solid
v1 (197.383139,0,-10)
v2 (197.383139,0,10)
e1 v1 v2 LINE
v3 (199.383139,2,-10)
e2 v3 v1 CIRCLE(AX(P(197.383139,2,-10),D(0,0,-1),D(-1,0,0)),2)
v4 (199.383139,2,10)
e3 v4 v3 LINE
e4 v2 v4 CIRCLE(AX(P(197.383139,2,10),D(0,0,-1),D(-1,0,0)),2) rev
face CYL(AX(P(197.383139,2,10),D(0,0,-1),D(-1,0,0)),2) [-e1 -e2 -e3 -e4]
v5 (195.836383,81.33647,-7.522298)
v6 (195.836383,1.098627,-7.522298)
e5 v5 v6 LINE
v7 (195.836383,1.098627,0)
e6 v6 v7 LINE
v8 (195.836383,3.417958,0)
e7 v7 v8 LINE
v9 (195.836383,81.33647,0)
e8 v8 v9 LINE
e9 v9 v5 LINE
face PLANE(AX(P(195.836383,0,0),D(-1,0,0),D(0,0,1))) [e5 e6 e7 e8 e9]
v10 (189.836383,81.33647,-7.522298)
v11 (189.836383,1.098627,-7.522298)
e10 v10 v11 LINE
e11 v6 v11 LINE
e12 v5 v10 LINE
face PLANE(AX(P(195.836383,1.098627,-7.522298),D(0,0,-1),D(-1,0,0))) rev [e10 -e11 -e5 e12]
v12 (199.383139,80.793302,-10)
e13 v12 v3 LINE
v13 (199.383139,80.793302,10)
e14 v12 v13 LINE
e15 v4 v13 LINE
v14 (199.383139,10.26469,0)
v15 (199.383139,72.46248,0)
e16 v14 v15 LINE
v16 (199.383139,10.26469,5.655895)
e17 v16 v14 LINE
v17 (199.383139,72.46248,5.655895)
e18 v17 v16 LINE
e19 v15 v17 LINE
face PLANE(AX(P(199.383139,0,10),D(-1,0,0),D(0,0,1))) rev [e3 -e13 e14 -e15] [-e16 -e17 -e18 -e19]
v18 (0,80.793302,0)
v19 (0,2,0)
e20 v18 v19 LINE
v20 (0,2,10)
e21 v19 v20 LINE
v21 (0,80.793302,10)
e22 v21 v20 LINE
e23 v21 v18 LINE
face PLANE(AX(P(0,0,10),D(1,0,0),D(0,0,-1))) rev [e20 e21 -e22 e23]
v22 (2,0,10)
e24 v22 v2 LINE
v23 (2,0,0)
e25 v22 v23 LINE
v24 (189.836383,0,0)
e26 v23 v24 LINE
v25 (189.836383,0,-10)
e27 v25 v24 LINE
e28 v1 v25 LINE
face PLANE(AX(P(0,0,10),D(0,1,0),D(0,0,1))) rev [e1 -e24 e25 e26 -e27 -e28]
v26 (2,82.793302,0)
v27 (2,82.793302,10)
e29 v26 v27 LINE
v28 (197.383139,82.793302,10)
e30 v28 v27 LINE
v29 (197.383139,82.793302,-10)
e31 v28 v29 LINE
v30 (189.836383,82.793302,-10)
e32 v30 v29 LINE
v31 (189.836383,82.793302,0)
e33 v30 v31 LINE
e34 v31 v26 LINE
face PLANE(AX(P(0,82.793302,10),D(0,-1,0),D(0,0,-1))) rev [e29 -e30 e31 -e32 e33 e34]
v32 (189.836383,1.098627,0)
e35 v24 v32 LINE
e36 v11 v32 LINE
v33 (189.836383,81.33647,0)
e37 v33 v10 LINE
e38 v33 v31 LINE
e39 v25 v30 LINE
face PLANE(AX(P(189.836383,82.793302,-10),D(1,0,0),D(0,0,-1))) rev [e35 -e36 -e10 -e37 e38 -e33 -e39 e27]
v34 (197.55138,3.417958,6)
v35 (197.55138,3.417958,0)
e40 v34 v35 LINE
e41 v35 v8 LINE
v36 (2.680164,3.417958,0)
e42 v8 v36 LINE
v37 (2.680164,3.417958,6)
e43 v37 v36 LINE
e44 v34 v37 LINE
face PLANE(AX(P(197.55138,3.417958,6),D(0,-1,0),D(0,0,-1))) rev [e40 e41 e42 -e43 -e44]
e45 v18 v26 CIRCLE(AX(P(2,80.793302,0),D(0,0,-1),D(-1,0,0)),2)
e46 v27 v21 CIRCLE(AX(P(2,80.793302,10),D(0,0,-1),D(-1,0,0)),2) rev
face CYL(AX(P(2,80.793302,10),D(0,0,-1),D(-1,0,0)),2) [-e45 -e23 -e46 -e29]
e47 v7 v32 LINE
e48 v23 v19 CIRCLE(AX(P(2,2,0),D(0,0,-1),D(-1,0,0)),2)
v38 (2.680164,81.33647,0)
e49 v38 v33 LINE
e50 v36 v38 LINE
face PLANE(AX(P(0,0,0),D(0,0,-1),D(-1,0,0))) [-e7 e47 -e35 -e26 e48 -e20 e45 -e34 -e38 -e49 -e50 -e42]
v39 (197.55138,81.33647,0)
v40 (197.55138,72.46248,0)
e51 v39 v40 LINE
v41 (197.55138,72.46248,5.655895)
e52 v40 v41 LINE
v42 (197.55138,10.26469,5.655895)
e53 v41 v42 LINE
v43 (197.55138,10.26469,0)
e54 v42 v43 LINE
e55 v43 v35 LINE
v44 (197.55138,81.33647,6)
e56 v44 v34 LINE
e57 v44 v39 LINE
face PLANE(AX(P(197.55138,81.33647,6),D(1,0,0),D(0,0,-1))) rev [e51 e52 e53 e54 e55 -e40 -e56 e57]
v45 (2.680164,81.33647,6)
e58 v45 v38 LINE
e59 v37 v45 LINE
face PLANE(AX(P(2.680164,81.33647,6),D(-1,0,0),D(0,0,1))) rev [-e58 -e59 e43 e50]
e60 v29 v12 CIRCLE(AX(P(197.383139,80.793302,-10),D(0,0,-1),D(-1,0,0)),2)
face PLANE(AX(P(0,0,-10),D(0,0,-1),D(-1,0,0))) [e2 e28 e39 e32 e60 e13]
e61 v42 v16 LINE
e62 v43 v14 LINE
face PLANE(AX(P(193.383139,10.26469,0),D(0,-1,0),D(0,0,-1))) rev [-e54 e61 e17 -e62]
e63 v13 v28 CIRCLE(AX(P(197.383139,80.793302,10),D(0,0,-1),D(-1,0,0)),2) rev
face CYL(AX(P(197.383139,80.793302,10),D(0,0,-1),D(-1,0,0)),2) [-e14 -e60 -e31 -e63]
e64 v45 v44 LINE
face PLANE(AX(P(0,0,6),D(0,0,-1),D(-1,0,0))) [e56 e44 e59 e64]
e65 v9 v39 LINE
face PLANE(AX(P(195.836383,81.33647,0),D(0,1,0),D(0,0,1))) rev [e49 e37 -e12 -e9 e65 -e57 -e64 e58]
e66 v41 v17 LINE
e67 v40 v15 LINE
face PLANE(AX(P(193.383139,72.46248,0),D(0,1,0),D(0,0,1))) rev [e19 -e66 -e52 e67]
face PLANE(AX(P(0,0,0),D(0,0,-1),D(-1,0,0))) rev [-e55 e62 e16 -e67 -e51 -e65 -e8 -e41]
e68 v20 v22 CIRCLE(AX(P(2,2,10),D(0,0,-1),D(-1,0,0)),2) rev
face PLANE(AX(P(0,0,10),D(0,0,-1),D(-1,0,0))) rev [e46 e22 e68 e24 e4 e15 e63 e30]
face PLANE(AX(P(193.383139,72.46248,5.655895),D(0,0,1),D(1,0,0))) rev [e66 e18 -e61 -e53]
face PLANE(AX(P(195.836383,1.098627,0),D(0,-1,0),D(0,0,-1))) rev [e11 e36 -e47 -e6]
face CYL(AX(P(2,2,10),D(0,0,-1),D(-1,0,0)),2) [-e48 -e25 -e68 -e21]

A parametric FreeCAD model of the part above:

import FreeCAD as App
import Part
import Sketcher
from FreeCAD import Vector
Q = App.Units.Quantity


def edges_at(feature, points):
    """Names of the edges that pass closest to the given points."""
    edges = feature.Shape.Edges
    near = lambda p: min(range(len(edges)), key=lambda i: edges[i].distToShape(Part.Vertex(*p))[0])
    return sorted({f"Edge{near(p) + 1}" for p in points})

doc = App.newDocument("Part")
body = doc.addObject("PartDesign::Body", "Body")

sketch1 = doc.addObject("Sketcher::SketchObject", "Sketch")
body.addObject(sketch1)
sketch1.AttachmentSupport = (doc.XY_Plane, [""])
sketch1.MapMode = "FlatFace"
sketch1.addGeometry([
    Part.LineSegment(Vector(0, 82.793302, 0), Vector(0, 0, 0)),
    Part.LineSegment(Vector(0, 0, 0), Vector(199.383139, 0, 0)),
    Part.LineSegment(Vector(199.383139, 0, 0), Vector(199.383139, 82.793302, 0)),
    Part.LineSegment(Vector(199.383139, 82.793302, 0), Vector(0, 82.793302, 0)),
], False)
sketch1.addConstraint([
    Sketcher.Constraint("Coincident", 0, 2, 1, 1),
    Sketcher.Constraint("Coincident", 1, 2, 2, 1),
    Sketcher.Constraint("Coincident", 2, 2, 3, 1),
    Sketcher.Constraint("Coincident", 3, 2, 0, 1),
    Sketcher.Constraint("Vertical", 0),
    Sketcher.Constraint("Horizontal", 1),
    Sketcher.Constraint("Vertical", 2),
    Sketcher.Constraint("Horizontal", 3),
    Sketcher.Constraint("Coincident", 0, 2, -1, 1),
    Sketcher.Constraint("DistanceY", 0, 2, 0, 1, Q("82.793302 mm")),
    Sketcher.Constraint("DistanceX", 1, 1, 1, 2, Q("199.383139 mm")),
])
pad1 = doc.addObject("PartDesign::Pad", "Pad")
body.addObject(pad1)
pad1.Profile = sketch1
pad1.Length = 10

sketch2 = doc.addObject("Sketcher::SketchObject", "Sketch001")
body.addObject(sketch2)
sketch2.AttachmentSupport = (doc.XY_Plane, [""])
sketch2.MapMode = "FlatFace"
sketch2.addGeometry([
    Part.LineSegment(Vector(199.383139, 82.793302, 0), Vector(199.383139, 0, 0)),
    Part.LineSegment(Vector(199.383139, 0, 0), Vector(189.836383, 0, 0)),
    Part.LineSegment(Vector(189.836383, 0, 0), Vector(189.836383, 82.793302, 0)),
    Part.LineSegment(Vector(189.836383, 82.793302, 0), Vector(199.383139, 82.793302, 0)),
], False)
sketch2.addConstraint([
    Sketcher.Constraint("Coincident", 0, 2, 1, 1),
    Sketcher.Constraint("Coincident", 1, 2, 2, 1),
    Sketcher.Constraint("Coincident", 2, 2, 3, 1),
    Sketcher.Constraint("Coincident", 3, 2, 0, 1),
    Sketcher.Constraint("Vertical", 0),
    Sketcher.Constraint("Horizontal", 1),
    Sketcher.Constraint("Vertical", 2),
    Sketcher.Constraint("Horizontal", 3),
    Sketcher.Constraint("PointOnObject", 0, 2, -1),
    Sketcher.Constraint("DistanceY", 0, 2, 0, 1, Q("82.793302 mm")),
    Sketcher.Constraint("DistanceX", 1, 2, 1, 1, Q("9.546756 mm")),
    Sketcher.Constraint("DistanceX", -1, 1, 0, 2, Q("199.383139 mm")),
])
pad2 = doc.addObject("PartDesign::Pad", "Pad001")
body.addObject(pad2)
pad2.Profile = sketch2
pad2.Length = 10
pad2.Reversed = True

sketch3 = doc.addObject("Sketcher::SketchObject", "Sketch002")
body.addObject(sketch3)
sketch3.AttachmentSupport = (doc.YZ_Plane, [""])
sketch3.MapMode = "FlatFace"
sketch3.AttachmentOffset = App.Placement(Vector(0, 0, 189.836383), App.Rotation())
sketch3.addGeometry([
    Part.LineSegment(Vector(81.33647, -7.522298, 0), Vector(1.098627, -7.522298, 0)),
    Part.LineSegment(Vector(1.098627, -7.522298, 0), Vector(1.098627, 0, 0)),
    Part.LineSegment(Vector(1.098627, 0, 0), Vector(81.33647, 0, 0)),
    Part.LineSegment(Vector(81.33647, 0, 0), Vector(81.33647, -7.522298, 0)),
], False)
sketch3.addConstraint([
    Sketcher.Constraint("Coincident", 0, 2, 1, 1),
    Sketcher.Constraint("Coincident", 1, 2, 2, 1),
    Sketcher.Constraint("Coincident", 2, 2, 3, 1),
    Sketcher.Constraint("Coincident", 3, 2, 0, 1),
    Sketcher.Constraint("Horizontal", 0),
    Sketcher.Constraint("Vertical", 1),
    Sketcher.Constraint("Horizontal", 2),
    Sketcher.Constraint("Vertical", 3),
    Sketcher.Constraint("PointOnObject", 1, 2, -1),
    Sketcher.Constraint("DistanceX", 0, 2, 0, 1, Q("80.237843 mm")),
    Sketcher.Constraint("DistanceY", 1, 1, 1, 2, Q("7.522298 mm")),
    Sketcher.Constraint("DistanceX", -1, 1, 2, 2, Q("81.33647 mm")),
])
pocket1 = doc.addObject("PartDesign::Pocket", "Pocket")
body.addObject(pocket1)
pocket1.Profile = sketch3
pocket1.Length = 6
pocket1.Reversed = True

sketch4 = doc.addObject("Sketcher::SketchObject", "Sketch003")
body.addObject(sketch4)
sketch4.AttachmentSupport = (doc.XY_Plane, [""])
sketch4.MapMode = "FlatFace"
sketch4.addGeometry([
    Part.LineSegment(Vector(197.55138, 81.33647, 0), Vector(197.55138, 3.417958, 0)),
    Part.LineSegment(Vector(197.55138, 3.417958, 0), Vector(2.680164, 3.417958, 0)),
    Part.LineSegment(Vector(2.680164, 3.417958, 0), Vector(2.680164, 81.33647, 0)),
    Part.LineSegment(Vector(2.680164, 81.33647, 0), Vector(197.55138, 81.33647, 0)),
], False)
sketch4.addConstraint([
    Sketcher.Constraint("Coincident", 0, 2, 1, 1),
    Sketcher.Constraint("Coincident", 1, 2, 2, 1),
    Sketcher.Constraint("Coincident", 2, 2, 3, 1),
    Sketcher.Constraint("Coincident", 3, 2, 0, 1),
    Sketcher.Constraint("Vertical", 0),
    Sketcher.Constraint("Horizontal", 1),
    Sketcher.Constraint("Vertical", 2),
    Sketcher.Constraint("Horizontal", 3),
    Sketcher.Constraint("DistanceX", 1, 2, 1, 1, Q("194.871217 mm")),
    Sketcher.Constraint("DistanceY", 0, 2, 0, 1, Q("77.918512 mm")),
    Sketcher.Constraint("DistanceX", -1, 1, 0, 2, Q("197.55138 mm")),
    Sketcher.Constraint("DistanceY", -1, 1, 2, 2, Q("81.33647 mm")),
])
pocket2 = doc.addObject("PartDesign::Pocket", "Pocket001")
body.addObject(pocket2)
pocket2.Profile = sketch4
pocket2.Length = 6
pocket2.Reversed = True

sketch5 = doc.addObject("Sketcher::SketchObject", "Sketch004")
body.addObject(sketch5)
sketch5.AttachmentSupport = (doc.YZ_Plane, [""])
sketch5.MapMode = "FlatFace"
sketch5.AttachmentOffset = App.Placement(Vector(0, 0, 199.383139), App.Rotation())
sketch5.addGeometry([
    Part.LineSegment(Vector(72.46248, 5.655895, 0), Vector(10.26469, 5.655895, 0)),
    Part.LineSegment(Vector(10.26469, 5.655895, 0), Vector(10.26469, 0, 0)),
    Part.LineSegment(Vector(10.26469, 0, 0), Vector(72.46248, 0, 0)),
    Part.LineSegment(Vector(72.46248, 0, 0), Vector(72.46248, 5.655895, 0)),
], False)
sketch5.addConstraint([
    Sketcher.Constraint("Coincident", 0, 2, 1, 1),
    Sketcher.Constraint("Coincident", 1, 2, 2, 1),
    Sketcher.Constraint("Coincident", 2, 2, 3, 1),
    Sketcher.Constraint("Coincident", 3, 2, 0, 1),
    Sketcher.Constraint("Horizontal", 0),
    Sketcher.Constraint("Vertical", 1),
    Sketcher.Constraint("Horizontal", 2),
    Sketcher.Constraint("Vertical", 3),
    Sketcher.Constraint("PointOnObject", 1, 2, -1),
    Sketcher.Constraint("DistanceX", 0, 2, 0, 1, Q("62.19779 mm")),
    Sketcher.Constraint("DistanceY", 1, 2, 1, 1, Q("5.655895 mm")),
    Sketcher.Constraint("DistanceX", -1, 1, 0, 2, Q("10.26469 mm")),
])
pocket3 = doc.addObject("PartDesign::Pocket", "Pocket002")
body.addObject(pocket3)
pocket3.Profile = sketch5
pocket3.Length = 6
doc.recompute()

fillet = doc.addObject("PartDesign::Fillet", "Fillet")
body.addObject(fillet)
fillet.Base = (pocket3, edges_at(pocket3, [(199.383, 0, -5)]))
fillet.Radius = 2
doc.recompute()

fillet2 = doc.addObject("PartDesign::Fillet", "Fillet001")
body.addObject(fillet2)
fillet2.Base = (fillet, edges_at(fillet, [(199.383, 82.793, -5)]))
fillet2.Radius = 2
doc.recompute()

fillet3 = doc.addObject("PartDesign::Fillet", "Fillet002")
body.addObject(fillet3)
fillet3.Base = (fillet2, edges_at(fillet2, [(0, 82.793, 5)]))
fillet3.Radius = 2
doc.recompute()

fillet4 = doc.addObject("PartDesign::Fillet", "Fillet003")
body.addObject(fillet4)
fillet4.Base = (fillet3, edges_at(fillet3, [(0, 0, 5)]))
fillet4.Radius = 2

doc.recompute()
